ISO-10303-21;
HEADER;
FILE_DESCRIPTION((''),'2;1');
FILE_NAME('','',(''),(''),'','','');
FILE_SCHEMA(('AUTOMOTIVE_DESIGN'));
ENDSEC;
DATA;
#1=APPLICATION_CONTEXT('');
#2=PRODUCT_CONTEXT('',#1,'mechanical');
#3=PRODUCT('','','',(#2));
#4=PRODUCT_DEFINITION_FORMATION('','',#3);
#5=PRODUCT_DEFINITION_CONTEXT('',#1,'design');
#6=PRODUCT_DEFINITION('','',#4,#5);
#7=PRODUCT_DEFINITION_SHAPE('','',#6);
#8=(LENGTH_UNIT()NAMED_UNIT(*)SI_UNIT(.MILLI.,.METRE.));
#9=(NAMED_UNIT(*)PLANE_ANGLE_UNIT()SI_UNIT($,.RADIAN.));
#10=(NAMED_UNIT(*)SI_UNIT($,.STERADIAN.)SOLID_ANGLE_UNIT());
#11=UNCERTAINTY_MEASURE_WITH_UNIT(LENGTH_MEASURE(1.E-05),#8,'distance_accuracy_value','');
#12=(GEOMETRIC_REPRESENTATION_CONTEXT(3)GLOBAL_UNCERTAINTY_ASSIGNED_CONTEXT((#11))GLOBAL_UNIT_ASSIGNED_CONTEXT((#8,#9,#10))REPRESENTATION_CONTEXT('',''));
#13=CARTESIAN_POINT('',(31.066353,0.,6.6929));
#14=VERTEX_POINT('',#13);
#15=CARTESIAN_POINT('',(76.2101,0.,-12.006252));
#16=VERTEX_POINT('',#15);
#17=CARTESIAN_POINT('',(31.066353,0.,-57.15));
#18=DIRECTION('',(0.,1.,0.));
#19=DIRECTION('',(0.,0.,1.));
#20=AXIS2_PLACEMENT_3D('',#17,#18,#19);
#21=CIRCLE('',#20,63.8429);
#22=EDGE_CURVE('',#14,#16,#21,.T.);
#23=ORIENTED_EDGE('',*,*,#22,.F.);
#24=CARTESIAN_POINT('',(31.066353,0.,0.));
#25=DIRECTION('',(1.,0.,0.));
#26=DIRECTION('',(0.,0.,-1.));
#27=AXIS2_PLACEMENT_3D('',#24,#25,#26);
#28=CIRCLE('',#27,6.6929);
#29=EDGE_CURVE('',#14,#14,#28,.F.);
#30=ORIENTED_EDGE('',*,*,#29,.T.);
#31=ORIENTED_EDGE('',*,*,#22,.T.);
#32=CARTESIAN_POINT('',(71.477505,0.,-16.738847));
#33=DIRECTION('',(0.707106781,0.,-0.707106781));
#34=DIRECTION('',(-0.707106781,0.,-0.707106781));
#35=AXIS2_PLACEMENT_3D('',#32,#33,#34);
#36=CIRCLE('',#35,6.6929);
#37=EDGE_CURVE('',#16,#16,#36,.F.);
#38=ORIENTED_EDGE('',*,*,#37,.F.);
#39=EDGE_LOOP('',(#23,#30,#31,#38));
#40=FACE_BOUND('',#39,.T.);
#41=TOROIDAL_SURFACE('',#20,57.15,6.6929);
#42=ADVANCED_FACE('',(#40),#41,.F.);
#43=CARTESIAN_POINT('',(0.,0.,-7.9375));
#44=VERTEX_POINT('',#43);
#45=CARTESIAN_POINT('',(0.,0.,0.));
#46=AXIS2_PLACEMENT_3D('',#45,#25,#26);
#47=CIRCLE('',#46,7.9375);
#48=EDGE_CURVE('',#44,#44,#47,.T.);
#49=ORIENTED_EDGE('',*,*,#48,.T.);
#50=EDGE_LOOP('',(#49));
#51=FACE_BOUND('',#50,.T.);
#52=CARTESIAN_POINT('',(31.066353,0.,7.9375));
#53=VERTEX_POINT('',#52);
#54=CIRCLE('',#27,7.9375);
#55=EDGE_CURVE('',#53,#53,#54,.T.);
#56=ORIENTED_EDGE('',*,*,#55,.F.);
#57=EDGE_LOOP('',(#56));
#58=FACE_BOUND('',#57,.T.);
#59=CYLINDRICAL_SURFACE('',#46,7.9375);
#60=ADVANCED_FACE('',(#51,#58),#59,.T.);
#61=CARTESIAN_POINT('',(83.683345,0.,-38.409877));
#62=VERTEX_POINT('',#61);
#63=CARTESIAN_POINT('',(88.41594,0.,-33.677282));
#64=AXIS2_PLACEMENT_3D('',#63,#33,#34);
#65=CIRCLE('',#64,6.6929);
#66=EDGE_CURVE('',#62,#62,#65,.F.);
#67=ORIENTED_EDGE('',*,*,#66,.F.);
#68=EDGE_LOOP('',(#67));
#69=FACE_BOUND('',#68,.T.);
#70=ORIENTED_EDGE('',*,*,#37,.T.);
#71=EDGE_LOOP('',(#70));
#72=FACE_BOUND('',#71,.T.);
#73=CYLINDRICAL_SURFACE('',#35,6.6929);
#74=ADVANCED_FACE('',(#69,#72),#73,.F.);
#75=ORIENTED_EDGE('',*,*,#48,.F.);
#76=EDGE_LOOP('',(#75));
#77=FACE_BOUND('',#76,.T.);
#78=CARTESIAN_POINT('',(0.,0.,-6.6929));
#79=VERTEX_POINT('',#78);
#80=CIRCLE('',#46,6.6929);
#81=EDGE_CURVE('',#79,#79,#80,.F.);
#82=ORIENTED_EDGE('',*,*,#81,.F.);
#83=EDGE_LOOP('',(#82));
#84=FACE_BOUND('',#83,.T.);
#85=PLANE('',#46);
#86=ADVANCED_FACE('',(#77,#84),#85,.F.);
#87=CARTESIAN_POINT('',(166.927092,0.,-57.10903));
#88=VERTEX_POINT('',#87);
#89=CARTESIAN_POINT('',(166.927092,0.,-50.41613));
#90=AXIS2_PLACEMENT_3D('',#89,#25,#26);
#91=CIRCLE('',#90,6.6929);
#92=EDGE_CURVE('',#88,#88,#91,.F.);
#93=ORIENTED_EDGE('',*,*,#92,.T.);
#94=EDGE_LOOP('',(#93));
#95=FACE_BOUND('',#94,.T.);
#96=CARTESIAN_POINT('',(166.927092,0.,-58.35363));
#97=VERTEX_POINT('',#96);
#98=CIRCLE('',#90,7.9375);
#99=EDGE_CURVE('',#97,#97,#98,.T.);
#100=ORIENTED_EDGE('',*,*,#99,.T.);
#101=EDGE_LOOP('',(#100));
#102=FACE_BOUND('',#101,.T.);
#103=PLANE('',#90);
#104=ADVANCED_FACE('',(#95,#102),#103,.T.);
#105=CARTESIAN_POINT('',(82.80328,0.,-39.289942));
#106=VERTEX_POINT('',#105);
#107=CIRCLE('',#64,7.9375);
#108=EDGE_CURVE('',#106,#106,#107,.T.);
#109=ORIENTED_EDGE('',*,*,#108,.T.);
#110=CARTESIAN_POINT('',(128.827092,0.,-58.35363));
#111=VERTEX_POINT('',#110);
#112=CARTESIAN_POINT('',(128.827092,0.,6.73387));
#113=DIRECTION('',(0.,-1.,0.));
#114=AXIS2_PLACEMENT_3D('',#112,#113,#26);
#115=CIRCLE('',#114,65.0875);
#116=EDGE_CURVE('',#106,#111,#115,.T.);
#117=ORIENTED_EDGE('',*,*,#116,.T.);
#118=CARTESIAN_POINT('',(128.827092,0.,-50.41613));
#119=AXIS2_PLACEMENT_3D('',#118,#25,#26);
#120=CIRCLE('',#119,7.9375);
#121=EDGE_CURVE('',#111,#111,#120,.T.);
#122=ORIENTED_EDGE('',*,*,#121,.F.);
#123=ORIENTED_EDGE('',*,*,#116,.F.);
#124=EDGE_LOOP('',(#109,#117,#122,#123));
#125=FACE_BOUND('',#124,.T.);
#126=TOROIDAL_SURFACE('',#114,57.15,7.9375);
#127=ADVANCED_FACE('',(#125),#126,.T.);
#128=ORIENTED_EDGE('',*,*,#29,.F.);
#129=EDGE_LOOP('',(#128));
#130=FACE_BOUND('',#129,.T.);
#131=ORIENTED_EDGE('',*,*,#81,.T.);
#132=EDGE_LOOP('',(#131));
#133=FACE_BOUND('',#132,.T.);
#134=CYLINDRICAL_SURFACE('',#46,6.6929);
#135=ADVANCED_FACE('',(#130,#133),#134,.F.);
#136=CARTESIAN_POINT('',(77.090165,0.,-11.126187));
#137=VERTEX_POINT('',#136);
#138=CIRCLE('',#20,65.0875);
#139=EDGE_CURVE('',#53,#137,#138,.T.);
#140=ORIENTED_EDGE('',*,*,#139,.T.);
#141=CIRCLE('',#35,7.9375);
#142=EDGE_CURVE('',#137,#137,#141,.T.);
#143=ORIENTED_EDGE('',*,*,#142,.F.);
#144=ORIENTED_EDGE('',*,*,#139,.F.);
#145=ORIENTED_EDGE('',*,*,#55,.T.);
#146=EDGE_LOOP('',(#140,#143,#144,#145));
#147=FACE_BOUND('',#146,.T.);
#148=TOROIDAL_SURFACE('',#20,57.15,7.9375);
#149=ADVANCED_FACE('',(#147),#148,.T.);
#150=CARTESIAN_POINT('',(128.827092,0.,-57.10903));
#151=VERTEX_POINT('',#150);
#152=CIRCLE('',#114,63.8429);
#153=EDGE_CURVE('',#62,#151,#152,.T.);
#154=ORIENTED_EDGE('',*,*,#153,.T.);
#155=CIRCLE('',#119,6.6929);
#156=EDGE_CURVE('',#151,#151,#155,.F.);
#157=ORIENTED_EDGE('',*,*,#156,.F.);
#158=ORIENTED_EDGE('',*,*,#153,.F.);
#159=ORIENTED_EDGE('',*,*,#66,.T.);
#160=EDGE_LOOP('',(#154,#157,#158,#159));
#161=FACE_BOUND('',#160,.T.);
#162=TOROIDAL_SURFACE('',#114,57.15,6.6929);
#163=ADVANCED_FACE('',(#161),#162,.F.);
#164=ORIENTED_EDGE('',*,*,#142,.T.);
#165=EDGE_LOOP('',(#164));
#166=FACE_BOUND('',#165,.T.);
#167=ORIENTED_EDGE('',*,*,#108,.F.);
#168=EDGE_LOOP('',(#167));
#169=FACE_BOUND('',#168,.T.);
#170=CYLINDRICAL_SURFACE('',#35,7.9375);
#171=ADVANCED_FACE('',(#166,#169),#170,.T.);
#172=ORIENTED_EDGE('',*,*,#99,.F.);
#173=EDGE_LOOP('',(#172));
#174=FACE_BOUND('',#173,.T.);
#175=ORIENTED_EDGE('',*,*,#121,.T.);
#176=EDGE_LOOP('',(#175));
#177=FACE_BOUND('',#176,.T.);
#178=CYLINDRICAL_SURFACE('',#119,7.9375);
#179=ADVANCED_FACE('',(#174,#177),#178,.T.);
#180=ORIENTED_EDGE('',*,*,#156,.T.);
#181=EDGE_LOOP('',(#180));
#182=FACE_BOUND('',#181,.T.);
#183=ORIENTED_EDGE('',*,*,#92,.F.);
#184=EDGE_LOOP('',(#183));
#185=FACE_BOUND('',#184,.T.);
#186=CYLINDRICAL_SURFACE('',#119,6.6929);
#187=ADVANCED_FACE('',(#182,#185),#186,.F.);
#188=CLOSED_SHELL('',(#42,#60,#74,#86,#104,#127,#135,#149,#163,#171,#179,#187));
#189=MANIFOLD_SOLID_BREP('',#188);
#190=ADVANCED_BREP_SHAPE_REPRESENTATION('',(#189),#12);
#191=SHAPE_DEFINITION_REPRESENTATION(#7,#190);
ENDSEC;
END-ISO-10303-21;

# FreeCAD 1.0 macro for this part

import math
import FreeCAD as App
import Part
import Sketcher
Q = App.Units.Quantity

doc = App.newDocument("Part")
params = doc.addObject("Spreadsheet::Sheet", "Params")
for row, (alias, value) in enumerate([
    ("sketch1_diameter", "0.625 in"),
    ("sketch1_diameter2", "0.527 in"),
    ("sketch2_radius", "2.25 in"),
    ("sketch2_width", "1.5 in"),
], start=1):
    params.set(f"A{row}", alias)
    params.set(f"B{row}", "=" + value)
    params.setAlias(f"B{row}", alias)

body = doc.addObject("PartDesign::Body", "Body")

sketch1 = body.newObject("Sketcher::SketchObject", "Sketch")
sketch1.AttachmentSupport = (doc.getObject("YZ_Plane"), [""])
sketch1.MapMode = "FlatFace"
sketch1.addGeometry([
    Part.Circle(App.Vector(0, 0, 0), App.Vector(0, 0, 1), 8),
    Part.Circle(App.Vector(0, 0, 0), App.Vector(0, 0, 1), 7),
], False)
sketch1.addConstraint([
    Sketcher.Constraint("Coincident", 0, 3, -1, 1),
    Sketcher.Constraint("Coincident", 1, 3, -1, 1),
    Sketcher.Constraint("Diameter", 0, Q("0.625 in")),
    Sketcher.Constraint("Diameter", 1, Q("0.527 in")),
])
sketch1.setExpression("Constraints[2]", "Params.sketch1_diameter")
sketch1.setExpression("Constraints[3]", "Params.sketch1_diameter2")

sketch2 = body.newObject("Sketcher::SketchObject", "Sketch001")
sketch2.AttachmentSupport = (doc.getObject("XZ_Plane"), [""])
sketch2.MapMode = "FlatFace"
sketch2.addGeometry([
    Part.LineSegment(App.Vector(0, 0, 0), App.Vector(31, 0, 0)),
    Part.ArcOfCircle(Part.Circle(App.Vector(31, -57, 0), App.Vector(0, 0, 1), 57), math.radians(45), math.radians(90)),
    Part.LineSegment(App.Vector(71, -17, 0), App.Vector(88, -34, 0)),
    Part.ArcOfCircle(Part.Circle(App.Vector(129, 7, 0), App.Vector(0, 0, 1), 57), math.radians(-135), math.radians(-90)),
    Part.LineSegment(App.Vector(129, -50, 0), App.Vector(167, -50, 0)),
], False)
sketch2.addConstraint([
    Sketcher.Constraint("Tangent", 0, 2, 1, 2),
    Sketcher.Constraint("Tangent", 1, 1, 2, 1),
    Sketcher.Constraint("Tangent", 2, 2, 3, 1),
    Sketcher.Constraint("Tangent", 3, 2, 4, 1),
    Sketcher.Constraint("Horizontal", 0),
    Sketcher.Constraint("Horizontal", 4),
    Sketcher.Constraint("Coincident", 0, 1, -1, 1),
    Sketcher.Constraint("Equal", 1, 3),
    Sketcher.Constraint("Radius", 1, Q("2.25 in")),
    Sketcher.Constraint("DistanceX", 4, 1, 4, 2, Q("1.5 in")),
    Sketcher.Constraint("Angle", 2, Q("-45 deg")),
    Sketcher.Constraint("DistanceX", 0, 1, 0, 2, Q("31.066353 mm")),
    Sketcher.Constraint("DistanceY", -1, 1, 3, 3, Q("6.73387 mm")),
])
sketch2.setExpression("Constraints[8]", "Params.sketch2_radius")
sketch2.setExpression("Constraints[9]", "Params.sketch2_width")
doc.recompute()

additivepipe = body.newObject("PartDesign::AdditivePipe", "AdditivePipe")
additivepipe.Profile = sketch1
additivepipe.Spine = (sketch2, ["Edge1", "Edge2", "Edge3", "Edge4", "Edge5"])

doc.recompute()
